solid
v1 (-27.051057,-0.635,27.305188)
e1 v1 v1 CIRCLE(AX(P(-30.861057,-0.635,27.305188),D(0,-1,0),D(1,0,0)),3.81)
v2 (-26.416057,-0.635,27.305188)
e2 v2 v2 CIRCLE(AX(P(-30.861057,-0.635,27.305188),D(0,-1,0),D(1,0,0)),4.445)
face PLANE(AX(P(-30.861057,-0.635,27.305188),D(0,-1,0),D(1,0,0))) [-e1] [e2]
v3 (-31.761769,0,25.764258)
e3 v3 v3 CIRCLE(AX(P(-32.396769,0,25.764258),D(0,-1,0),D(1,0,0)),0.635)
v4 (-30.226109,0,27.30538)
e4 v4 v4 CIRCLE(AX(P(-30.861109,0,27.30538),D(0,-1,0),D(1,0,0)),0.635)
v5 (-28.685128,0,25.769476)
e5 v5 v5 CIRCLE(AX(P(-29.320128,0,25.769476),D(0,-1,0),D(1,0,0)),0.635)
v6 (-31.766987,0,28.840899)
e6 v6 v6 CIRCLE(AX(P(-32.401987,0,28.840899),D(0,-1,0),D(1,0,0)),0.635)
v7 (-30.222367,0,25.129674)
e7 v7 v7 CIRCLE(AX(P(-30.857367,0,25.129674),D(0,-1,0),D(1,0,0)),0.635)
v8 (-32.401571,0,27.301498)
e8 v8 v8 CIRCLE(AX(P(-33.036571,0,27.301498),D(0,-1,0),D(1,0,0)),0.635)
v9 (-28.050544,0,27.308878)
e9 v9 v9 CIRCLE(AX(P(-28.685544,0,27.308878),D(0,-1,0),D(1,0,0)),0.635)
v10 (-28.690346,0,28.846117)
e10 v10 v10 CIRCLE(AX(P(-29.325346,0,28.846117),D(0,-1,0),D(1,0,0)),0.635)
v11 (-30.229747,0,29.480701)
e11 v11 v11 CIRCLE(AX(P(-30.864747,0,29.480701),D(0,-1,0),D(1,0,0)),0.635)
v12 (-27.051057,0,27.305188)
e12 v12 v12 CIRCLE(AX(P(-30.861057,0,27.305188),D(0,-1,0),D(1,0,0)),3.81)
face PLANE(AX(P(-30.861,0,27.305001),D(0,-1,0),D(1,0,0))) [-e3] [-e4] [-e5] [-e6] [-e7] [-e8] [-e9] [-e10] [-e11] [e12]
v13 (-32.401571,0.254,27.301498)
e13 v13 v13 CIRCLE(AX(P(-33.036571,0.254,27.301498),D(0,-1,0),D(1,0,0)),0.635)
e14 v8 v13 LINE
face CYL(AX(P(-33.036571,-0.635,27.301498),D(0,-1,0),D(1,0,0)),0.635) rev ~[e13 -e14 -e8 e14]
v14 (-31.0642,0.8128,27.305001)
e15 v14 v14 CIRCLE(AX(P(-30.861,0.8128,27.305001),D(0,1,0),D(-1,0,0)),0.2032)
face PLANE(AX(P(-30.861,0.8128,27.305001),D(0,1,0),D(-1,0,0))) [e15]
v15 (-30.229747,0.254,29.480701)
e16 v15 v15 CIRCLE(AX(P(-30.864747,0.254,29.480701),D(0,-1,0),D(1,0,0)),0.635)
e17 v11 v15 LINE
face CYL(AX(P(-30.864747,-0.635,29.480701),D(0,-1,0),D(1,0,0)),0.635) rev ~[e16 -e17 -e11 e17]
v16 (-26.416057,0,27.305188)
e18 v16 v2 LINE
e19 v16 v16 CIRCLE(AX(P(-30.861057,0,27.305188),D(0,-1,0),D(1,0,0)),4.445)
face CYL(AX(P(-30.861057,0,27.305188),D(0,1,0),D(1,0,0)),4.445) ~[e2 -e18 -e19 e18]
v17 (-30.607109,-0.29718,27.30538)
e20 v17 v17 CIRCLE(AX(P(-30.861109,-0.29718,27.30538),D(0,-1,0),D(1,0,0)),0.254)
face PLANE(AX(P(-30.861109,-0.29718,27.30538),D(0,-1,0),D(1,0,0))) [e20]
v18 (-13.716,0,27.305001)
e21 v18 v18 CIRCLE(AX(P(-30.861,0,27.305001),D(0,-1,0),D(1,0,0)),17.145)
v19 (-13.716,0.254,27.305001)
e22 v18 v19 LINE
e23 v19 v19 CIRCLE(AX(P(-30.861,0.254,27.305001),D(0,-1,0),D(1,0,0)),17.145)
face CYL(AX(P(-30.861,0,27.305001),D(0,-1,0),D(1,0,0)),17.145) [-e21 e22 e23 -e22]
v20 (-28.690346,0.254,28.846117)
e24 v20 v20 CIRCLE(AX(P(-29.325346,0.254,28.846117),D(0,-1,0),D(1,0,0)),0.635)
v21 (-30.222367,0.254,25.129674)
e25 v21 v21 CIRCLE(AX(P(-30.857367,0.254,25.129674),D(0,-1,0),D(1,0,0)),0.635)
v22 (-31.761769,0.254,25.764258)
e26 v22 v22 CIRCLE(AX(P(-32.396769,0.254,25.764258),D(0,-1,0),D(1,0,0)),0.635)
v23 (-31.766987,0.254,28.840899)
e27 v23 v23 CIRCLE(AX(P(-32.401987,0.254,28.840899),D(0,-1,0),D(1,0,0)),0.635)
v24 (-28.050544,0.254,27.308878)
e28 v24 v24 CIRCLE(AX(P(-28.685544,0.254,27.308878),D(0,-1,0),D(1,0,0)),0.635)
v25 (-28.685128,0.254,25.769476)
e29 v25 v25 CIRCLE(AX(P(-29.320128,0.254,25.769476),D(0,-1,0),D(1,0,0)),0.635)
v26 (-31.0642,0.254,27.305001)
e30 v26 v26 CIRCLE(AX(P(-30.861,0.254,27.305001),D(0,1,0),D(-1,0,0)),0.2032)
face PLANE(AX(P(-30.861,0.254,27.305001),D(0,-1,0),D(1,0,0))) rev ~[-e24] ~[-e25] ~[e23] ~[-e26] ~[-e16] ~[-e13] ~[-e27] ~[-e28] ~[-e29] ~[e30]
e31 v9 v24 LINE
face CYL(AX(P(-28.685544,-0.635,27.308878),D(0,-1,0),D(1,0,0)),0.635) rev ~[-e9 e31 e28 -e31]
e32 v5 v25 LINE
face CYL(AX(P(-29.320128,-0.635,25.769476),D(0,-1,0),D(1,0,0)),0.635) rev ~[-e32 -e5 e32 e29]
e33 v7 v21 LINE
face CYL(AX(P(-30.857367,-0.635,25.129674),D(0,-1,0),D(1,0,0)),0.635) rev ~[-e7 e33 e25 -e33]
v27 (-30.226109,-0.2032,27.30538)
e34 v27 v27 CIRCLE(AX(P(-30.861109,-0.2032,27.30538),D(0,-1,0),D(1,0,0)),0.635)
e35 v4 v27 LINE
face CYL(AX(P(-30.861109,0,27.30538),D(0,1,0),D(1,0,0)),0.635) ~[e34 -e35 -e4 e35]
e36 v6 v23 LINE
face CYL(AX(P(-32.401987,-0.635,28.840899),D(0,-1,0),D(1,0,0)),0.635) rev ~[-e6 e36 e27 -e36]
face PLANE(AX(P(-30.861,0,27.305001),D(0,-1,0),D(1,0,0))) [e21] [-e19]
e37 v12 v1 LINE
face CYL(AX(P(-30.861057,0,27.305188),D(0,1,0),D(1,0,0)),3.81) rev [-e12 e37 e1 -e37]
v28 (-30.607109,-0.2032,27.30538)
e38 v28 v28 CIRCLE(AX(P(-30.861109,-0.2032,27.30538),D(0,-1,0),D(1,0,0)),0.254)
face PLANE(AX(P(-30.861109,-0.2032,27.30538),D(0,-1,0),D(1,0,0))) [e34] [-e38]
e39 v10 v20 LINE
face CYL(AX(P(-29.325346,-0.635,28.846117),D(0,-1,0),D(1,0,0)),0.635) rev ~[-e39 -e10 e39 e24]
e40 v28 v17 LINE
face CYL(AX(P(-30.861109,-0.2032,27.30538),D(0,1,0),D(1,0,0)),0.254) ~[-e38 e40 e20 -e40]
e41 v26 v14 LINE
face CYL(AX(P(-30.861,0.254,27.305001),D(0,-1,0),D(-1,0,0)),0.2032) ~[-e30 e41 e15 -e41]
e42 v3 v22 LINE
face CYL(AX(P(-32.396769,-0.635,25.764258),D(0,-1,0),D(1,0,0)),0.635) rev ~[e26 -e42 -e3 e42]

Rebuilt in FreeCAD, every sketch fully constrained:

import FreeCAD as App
import Part
import Sketcher
Q = App.Units.Quantity

doc = App.newDocument("Part")
body = doc.addObject("PartDesign::Body", "Body")

sketch1 = body.newObject("Sketcher::SketchObject", "Sketch")
sketch1.AttachmentSupport = (doc.getObject("XZ_Plane"), [""])
sketch1.MapMode = "FlatFace"
sketch1.addGeometry(Part.Circle(App.Vector(-31, 27, 0), App.Vector(0, 0, 1), 17), False)
sketch1.addConstraint([
    Sketcher.Constraint("Diameter", 0, Q("1.35 in")),
    Sketcher.Constraint("DistanceX", 0, 3, -1, 1, Q("1.215 in")),
    Sketcher.Constraint("DistanceY", -1, 1, 0, 3, Q("1.075 in")),
])
pad1 = body.newObject("PartDesign::Pad", "Pad")
pad1.Profile = sketch1
pad1.Length = Q("0.01 in")
pad1.Reversed = True

sketch2 = body.newObject("Sketcher::SketchObject", "Sketch001")
sketch2.AttachmentSupport = (doc.getObject("XZ_Plane"), [""])
sketch2.MapMode = "FlatFace"
sketch2.addGeometry([
    Part.Circle(App.Vector(-30.9, 27.3, 0), App.Vector(0, 0, 1), 4.4),
    Part.Circle(App.Vector(-30.9, 27.3, 0), App.Vector(0, 0, 1), 3.8),
], False)
sketch2.addConstraint([
    Sketcher.Constraint("Coincident", 1, 3, 0, 3),
    Sketcher.Constraint("Diameter", 1, Q("0.3 in")),
    Sketcher.Constraint("Diameter", 0, Q("0.35 in")),
    Sketcher.Constraint("DistanceY", -1, 1, 0, 3, 27.305188),
    Sketcher.Constraint("DistanceX", 0, 3, -1, 1, 30.861057),
])
pad2 = body.newObject("PartDesign::Pad", "Pad001")
pad2.Profile = sketch2
pad2.Length = Q("0.025 in")

sketch3 = body.newObject("Sketcher::SketchObject", "Sketch002")
sketch3.AttachmentSupport = (doc.getObject("XZ_Plane"), [""])
sketch3.MapMode = "FlatFace"
sketch3.addGeometry(Part.Circle(App.Vector(-30.9, 27.3, 0), App.Vector(0, 0, 1), 0.6), False)
sketch3.addConstraint([
    Sketcher.Constraint("Diameter", 0, Q("0.05 in")),
    Sketcher.Constraint("DistanceX", 0, 3, -1, 1, 30.861109),
    Sketcher.Constraint("DistanceY", -1, 1, 0, 3, 27.30538),
])
pad3 = body.newObject("PartDesign::Pad", "Pad002")
pad3.Profile = sketch3
pad3.Length = Q("0.008 in")

sketch4 = body.newObject("Sketcher::SketchObject", "Sketch003")
sketch4.AttachmentSupport = (doc.getObject("XZ_Plane"), [""])
sketch4.MapMode = "FlatFace"
sketch4.AttachmentOffset = App.Placement(App.Vector(0, 0, 0.008 * 25.4), App.Rotation())
sketch4.addGeometry(Part.Circle(App.Vector(-30.86, 27.31, 0), App.Vector(0, 0, 1), 0.25), False)
sketch4.addConstraint([
    Sketcher.Constraint("Diameter", 0, Q("0.02 in")),
    Sketcher.Constraint("DistanceX", 0, 3, -1, 1, 30.861109),
    Sketcher.Constraint("DistanceY", -1, 1, 0, 3, 27.30538),
])
pad4 = body.newObject("PartDesign::Pad", "Pad003")
pad4.Profile = sketch4
pad4.Length = Q("0.0037 in")

sketch5 = body.newObject("Sketcher::SketchObject", "Sketch004")
sketch5.AttachmentSupport = (doc.getObject("XZ_Plane"), [""])
sketch5.MapMode = "FlatFace"
sketch5.AttachmentOffset = App.Placement(App.Vector(0, 0, 0.025 * 25.4), App.Rotation())
sketch5.addGeometry([
    Part.Circle(App.Vector(-30.9, 29.5, 0), App.Vector(0, 0, 1), 0.6),
    Part.Circle(App.Vector(-29.3, 28.8, 0), App.Vector(0, 0, 1), 0.6),
    Part.Circle(App.Vector(-28.7, 27.3, 0), App.Vector(0, 0, 1), 0.6),
    Part.Circle(App.Vector(-29.3, 25.8, 0), App.Vector(0, 0, 1), 0.6),
    Part.Circle(App.Vector(-30.9, 25.1, 0), App.Vector(0, 0, 1), 0.6),
    Part.Circle(App.Vector(-33, 27.3, 0), App.Vector(0, 0, 1), 0.6),
    Part.Circle(App.Vector(-32.4, 28.8, 0), App.Vector(0, 0, 1), 0.6),
    Part.Circle(App.Vector(-32.4, 25.8, 0), App.Vector(0, 0, 1), 0.6),
], False)
sketch5.addConstraint([
    Sketcher.Constraint("Equal", 0, 1),
    Sketcher.Constraint("Equal", 1, 2),
    Sketcher.Constraint("Equal", 2, 3),
    Sketcher.Constraint("Equal", 3, 4),
    Sketcher.Constraint("Equal", 4, 5),
    Sketcher.Constraint("Equal", 5, 6),
    Sketcher.Constraint("Equal", 6, 7),
    Sketcher.Constraint("Diameter", 0, Q("0.05 in")),
    Sketcher.Constraint("DistanceY", -1, 1, 0, 3, 29.480701),
    Sketcher.Constraint("DistanceY", -1, 1, 6, 3, 28.840899),
    Sketcher.Constraint("DistanceX", 0, 3, 1, 3, 1.539401),
    Sketcher.Constraint("DistanceX", 1, 3, 2, 3, 0.639802),
    Sketcher.Constraint("DistanceY", 3, 3, 2, 3, 1.539402),
    Sketcher.Constraint("DistanceY", 4, 3, 3, 3, 0.639802),
    Sketcher.Constraint("DistanceY", 5, 3, 6, 3, 1.539401),
    Sketcher.Constraint("DistanceX", 7, 3, 4, 3, 1.539402),
    Sketcher.Constraint("DistanceY", -1, 1, 2, 3, 27.308878),
    Sketcher.Constraint("DistanceX", 3, 3, -1, 1, 29.320128),
    Sketcher.Constraint("DistanceX", 5, 3, -1, 1, 33.036571),
    Sketcher.Constraint("DistanceX", 7, 3, -1, 1, 32.396769),
    Sketcher.Constraint("DistanceY", -1, 1, 7, 3, 25.764258),
    Sketcher.Constraint("DistanceY", 2, 3, 1, 3, 1.537239),
    Sketcher.Constraint("DistanceX", 0, 3, 3, 3, 1.544619),
    Sketcher.Constraint("DistanceX", 6, 3, 0, 3, 1.53724),
])
pocket1 = body.newObject("PartDesign::Pocket", "Pocket")
pocket1.Profile = sketch5
pocket1.Length = Q("0.074 in")

sketch6 = body.newObject("Sketcher::SketchObject", "Sketch005")
sketch6.AttachmentSupport = (doc.getObject("XZ_Plane"), [""])
sketch6.MapMode = "FlatFace"
sketch6.AttachmentOffset = App.Placement(App.Vector(0, 0, -0.01 * 25.4), App.Rotation())
sketch6.addGeometry(Part.Circle(App.Vector(-30.86, 27.31, 0), App.Vector(0, 0, 1), 0.2), False)
sketch6.addConstraint([
    Sketcher.Constraint("Diameter", 0, Q("0.016 in")),
    Sketcher.Constraint("DistanceX", 0, 3, -1, 1, Q("1.215 in")),
    Sketcher.Constraint("DistanceY", -1, 1, 0, 3, Q("1.075 in")),
])
pad5 = body.newObject("PartDesign::Pad", "Pad004")
pad5.Profile = sketch6
pad5.Length = Q("0.022 in")
pad5.Reversed = True

doc.recompute()
